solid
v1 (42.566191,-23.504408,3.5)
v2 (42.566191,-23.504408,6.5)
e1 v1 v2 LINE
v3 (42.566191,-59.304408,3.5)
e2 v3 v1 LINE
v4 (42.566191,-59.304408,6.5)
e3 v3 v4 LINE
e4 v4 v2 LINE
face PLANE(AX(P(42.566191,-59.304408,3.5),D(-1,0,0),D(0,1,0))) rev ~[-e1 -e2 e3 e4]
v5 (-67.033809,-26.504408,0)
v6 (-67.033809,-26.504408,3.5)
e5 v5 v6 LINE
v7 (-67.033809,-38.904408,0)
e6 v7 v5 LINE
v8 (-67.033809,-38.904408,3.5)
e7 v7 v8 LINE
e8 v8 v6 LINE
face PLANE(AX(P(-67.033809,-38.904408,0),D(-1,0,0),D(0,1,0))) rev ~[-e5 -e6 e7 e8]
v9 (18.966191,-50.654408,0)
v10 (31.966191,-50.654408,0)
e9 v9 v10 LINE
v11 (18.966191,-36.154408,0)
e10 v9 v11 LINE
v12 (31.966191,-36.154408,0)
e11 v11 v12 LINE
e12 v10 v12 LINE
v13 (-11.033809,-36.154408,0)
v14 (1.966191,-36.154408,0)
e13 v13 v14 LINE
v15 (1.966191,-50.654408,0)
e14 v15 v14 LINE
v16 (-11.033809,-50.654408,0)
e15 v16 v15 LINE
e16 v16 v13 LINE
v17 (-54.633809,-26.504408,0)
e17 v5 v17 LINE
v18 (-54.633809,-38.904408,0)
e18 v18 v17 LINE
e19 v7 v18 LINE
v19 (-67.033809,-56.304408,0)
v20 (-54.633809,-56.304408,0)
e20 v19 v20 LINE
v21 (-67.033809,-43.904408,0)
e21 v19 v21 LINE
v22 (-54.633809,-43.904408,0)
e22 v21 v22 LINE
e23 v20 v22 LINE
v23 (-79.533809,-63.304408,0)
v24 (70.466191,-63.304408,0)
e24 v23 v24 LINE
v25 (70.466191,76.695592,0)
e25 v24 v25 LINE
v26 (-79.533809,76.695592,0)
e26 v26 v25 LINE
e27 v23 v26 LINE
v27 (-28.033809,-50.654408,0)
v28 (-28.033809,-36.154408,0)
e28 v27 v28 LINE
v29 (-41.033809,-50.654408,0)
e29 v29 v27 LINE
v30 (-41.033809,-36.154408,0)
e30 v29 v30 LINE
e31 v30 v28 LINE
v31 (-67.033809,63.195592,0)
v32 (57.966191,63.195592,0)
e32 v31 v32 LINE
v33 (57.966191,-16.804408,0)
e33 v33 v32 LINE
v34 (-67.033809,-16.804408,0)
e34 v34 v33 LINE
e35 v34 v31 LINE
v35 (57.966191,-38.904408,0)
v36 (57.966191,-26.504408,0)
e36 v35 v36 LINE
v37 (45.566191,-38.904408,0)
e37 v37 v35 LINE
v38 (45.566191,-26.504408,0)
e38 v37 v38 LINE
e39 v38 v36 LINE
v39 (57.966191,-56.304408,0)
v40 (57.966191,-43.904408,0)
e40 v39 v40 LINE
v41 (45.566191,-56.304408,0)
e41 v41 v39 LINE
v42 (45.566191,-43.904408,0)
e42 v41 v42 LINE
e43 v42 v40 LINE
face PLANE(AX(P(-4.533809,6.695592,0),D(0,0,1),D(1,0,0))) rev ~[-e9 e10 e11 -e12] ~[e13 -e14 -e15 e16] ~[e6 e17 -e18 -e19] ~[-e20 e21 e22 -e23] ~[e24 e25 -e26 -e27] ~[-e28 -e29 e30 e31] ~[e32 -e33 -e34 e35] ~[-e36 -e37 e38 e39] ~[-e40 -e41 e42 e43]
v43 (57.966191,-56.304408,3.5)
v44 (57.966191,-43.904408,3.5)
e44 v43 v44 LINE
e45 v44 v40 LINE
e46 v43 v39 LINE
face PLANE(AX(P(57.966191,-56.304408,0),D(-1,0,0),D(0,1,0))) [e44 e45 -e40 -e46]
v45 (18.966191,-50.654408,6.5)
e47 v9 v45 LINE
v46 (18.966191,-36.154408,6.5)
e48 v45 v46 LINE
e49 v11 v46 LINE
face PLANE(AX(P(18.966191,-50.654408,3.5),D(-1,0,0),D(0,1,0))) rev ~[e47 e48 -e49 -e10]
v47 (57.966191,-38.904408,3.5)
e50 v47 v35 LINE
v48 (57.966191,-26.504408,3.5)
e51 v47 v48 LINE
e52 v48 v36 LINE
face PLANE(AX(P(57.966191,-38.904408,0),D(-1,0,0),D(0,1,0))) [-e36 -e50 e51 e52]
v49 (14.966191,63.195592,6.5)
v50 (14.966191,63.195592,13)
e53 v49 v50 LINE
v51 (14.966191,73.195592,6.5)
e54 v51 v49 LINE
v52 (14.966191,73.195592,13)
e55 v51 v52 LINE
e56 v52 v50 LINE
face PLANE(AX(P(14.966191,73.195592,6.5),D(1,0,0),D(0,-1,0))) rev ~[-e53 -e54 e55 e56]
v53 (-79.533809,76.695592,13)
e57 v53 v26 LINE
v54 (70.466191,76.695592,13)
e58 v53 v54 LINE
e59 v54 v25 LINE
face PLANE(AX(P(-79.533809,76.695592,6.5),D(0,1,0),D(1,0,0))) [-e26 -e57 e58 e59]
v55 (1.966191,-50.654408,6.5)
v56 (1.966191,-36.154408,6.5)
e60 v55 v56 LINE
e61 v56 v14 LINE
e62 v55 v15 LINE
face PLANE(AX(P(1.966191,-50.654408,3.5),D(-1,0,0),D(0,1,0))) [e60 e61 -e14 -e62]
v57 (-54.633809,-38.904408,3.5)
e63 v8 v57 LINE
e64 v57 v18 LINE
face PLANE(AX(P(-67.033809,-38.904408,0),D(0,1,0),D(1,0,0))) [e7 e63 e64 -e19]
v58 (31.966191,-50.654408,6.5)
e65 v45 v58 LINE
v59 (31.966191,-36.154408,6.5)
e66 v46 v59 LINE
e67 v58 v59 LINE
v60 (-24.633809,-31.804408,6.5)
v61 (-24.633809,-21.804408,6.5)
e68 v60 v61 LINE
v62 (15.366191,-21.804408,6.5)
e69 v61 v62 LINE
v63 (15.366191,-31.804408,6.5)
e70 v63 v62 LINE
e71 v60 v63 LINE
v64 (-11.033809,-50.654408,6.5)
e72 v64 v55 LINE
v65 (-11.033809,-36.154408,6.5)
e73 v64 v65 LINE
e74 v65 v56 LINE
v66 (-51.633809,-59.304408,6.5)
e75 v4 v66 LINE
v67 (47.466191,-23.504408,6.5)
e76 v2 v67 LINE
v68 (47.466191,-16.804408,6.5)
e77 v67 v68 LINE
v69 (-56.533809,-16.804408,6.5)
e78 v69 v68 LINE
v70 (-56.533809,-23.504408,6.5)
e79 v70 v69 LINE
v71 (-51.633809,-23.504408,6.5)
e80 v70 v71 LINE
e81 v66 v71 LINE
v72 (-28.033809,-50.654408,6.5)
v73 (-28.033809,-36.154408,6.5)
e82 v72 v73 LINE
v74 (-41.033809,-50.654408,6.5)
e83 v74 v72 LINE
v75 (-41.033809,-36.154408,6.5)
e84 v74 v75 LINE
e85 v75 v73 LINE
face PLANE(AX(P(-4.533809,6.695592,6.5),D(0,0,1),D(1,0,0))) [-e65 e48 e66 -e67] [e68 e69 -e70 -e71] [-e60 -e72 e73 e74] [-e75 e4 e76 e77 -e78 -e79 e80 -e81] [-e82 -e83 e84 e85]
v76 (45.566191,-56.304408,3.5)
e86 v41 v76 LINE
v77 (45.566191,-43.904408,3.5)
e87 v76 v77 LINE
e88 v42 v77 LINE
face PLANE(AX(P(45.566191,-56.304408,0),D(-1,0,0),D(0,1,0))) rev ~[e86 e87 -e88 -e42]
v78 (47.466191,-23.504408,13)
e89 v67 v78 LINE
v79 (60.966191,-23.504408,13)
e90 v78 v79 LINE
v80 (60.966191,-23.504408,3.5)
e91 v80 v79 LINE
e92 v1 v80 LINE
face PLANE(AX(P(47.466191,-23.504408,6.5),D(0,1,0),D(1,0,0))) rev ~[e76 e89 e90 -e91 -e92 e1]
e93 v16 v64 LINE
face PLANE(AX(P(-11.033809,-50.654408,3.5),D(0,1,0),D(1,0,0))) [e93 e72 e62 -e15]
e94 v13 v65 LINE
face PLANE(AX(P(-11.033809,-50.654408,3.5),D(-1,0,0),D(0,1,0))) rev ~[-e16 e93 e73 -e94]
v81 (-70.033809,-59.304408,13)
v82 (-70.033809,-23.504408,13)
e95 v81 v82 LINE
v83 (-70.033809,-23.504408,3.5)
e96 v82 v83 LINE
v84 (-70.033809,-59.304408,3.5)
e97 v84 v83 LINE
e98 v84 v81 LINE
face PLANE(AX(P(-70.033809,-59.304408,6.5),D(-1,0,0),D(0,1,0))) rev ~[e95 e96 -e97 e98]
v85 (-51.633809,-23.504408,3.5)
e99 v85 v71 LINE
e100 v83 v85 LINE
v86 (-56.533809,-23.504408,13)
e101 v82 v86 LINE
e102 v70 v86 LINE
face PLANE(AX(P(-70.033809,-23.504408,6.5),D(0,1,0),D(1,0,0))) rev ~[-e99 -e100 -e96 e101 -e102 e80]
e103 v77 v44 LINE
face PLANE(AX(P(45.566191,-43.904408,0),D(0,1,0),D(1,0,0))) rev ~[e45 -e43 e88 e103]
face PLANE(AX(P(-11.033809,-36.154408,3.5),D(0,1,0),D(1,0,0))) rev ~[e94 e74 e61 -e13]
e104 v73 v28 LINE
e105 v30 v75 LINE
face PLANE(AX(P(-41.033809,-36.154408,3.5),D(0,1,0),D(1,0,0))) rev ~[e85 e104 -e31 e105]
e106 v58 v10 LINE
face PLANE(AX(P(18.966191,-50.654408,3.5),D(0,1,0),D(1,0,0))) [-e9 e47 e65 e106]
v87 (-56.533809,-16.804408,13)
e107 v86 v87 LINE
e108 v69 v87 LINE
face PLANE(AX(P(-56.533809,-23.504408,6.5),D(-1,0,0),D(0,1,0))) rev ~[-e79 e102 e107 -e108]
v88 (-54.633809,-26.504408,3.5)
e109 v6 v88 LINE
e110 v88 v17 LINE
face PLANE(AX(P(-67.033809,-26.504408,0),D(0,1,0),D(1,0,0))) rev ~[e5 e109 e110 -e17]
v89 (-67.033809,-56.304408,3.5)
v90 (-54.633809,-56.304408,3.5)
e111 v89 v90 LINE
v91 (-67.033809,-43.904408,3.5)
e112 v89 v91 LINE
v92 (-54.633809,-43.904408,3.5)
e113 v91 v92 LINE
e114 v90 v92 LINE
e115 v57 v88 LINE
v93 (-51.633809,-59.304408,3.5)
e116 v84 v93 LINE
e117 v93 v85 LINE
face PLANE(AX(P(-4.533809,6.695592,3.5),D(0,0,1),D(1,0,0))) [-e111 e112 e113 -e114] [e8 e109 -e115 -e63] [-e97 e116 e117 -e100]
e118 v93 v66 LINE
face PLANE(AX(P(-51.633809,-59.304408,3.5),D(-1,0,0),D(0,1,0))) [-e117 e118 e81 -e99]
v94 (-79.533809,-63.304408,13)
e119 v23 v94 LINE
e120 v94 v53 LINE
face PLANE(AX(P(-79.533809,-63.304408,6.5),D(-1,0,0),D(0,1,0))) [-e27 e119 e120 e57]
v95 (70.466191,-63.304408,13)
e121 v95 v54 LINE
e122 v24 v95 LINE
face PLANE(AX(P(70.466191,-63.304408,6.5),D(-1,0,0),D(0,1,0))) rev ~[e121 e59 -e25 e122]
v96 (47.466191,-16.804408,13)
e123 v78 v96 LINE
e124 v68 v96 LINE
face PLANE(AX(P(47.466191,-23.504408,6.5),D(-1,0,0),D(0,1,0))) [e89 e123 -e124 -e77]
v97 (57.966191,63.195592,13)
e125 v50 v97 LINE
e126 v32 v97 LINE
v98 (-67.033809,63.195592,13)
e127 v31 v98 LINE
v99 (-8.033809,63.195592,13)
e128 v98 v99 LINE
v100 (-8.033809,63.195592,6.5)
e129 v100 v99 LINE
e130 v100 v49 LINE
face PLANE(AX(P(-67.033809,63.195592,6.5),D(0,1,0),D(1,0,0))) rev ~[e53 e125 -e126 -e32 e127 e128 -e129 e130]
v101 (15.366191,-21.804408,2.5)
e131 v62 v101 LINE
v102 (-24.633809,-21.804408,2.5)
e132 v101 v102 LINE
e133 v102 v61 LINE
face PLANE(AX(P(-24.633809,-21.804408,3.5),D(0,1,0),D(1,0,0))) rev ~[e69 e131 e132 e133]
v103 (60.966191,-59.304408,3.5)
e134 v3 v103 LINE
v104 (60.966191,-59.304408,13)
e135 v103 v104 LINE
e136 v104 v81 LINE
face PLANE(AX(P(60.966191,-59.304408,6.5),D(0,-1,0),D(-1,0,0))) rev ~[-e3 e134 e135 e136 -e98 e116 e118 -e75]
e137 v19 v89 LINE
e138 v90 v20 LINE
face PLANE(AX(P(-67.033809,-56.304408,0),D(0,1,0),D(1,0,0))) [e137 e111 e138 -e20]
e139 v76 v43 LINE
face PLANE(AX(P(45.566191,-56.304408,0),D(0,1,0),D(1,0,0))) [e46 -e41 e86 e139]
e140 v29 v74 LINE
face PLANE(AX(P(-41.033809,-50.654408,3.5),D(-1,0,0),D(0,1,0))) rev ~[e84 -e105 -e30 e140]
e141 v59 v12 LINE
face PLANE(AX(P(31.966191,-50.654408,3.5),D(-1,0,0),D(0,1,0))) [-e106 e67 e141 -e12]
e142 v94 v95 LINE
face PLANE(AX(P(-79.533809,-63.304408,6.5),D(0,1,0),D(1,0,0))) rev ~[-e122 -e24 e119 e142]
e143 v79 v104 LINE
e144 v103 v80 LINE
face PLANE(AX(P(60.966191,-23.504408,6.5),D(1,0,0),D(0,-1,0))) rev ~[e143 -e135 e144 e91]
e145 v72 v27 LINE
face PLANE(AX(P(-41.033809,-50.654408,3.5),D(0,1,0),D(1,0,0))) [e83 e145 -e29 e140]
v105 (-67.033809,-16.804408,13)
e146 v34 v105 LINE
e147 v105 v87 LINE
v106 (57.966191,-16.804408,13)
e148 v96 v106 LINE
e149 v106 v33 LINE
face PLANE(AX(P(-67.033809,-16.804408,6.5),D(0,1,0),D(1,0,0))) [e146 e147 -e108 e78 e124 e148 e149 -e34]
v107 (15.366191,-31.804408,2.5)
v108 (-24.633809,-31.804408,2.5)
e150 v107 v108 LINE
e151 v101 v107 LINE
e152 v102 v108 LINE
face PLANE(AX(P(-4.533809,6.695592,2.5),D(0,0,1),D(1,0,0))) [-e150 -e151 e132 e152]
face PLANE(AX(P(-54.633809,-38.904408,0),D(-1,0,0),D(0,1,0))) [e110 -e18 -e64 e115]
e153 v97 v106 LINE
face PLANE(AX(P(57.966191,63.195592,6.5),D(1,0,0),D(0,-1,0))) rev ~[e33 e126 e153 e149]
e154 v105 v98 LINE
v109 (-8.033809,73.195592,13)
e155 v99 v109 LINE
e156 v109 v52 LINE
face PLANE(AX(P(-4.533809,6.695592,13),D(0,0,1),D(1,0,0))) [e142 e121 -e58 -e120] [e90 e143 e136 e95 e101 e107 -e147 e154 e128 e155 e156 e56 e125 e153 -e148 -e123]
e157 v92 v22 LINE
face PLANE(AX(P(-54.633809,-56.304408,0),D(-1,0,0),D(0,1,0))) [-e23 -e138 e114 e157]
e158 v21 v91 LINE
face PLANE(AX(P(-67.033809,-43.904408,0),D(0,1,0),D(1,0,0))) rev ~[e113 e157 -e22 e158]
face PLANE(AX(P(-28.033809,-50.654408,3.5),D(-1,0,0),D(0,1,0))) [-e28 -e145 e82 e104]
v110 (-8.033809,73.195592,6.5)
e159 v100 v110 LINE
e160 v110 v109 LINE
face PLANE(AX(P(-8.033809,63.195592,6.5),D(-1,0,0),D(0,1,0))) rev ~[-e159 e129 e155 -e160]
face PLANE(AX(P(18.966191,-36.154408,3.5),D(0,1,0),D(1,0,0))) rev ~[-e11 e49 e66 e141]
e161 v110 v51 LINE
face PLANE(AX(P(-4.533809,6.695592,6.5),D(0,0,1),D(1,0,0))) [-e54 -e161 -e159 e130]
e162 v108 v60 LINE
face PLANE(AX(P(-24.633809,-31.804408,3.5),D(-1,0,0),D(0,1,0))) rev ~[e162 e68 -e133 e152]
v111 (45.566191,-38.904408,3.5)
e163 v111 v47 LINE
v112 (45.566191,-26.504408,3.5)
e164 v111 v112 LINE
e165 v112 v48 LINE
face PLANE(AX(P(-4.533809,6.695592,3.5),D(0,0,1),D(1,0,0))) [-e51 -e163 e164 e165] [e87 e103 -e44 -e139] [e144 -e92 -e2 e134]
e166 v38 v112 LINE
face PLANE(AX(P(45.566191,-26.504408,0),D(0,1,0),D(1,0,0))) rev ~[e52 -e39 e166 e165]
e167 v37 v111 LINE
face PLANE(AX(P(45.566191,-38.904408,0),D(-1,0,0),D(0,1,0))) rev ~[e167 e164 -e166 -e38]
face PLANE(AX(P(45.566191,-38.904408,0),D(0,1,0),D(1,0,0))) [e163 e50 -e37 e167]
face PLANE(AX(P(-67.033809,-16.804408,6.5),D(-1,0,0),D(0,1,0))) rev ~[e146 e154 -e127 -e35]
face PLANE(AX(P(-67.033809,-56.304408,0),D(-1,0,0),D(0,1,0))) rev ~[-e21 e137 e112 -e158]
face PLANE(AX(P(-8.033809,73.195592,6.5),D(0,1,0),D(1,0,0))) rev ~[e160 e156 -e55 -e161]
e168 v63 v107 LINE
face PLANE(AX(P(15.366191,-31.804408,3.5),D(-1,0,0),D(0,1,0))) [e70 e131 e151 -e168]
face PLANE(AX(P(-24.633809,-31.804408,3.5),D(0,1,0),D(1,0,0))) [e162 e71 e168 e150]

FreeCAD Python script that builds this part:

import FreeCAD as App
import Part
import Sketcher
from FreeCAD import Vector
Q = App.Units.Quantity


def add_polygon(sketch, points):
    """Adds a closed chain of lines whose ends are joined by coincident constraints."""
    first, n = sketch.GeometryCount, len(points)
    for a, b in zip(points, points[1:] + points[:1]):
        sketch.addGeometry(Part.LineSegment(App.Vector(*a, 0), App.Vector(*b, 0)), False)
    for i in range(n):
        sketch.addConstraint(Sketcher.Constraint("Coincident", first + i, 2, first + (i + 1) % n, 1))

doc = App.newDocument("Part")
body = doc.addObject("PartDesign::Body", "Body")

sketch1 = doc.addObject("Sketcher::SketchObject", "Sketch")
body.addObject(sketch1)
sketch1.AttachmentSupport = (doc.XY_Plane, [""])
sketch1.MapMode = "FlatFace"
add_polygon(sketch1, [(-80, 77), (-80, -63), (70, -63), (70, 77)])
add_polygon(sketch1, [(-55, -56), (-67, -56), (-67, -44), (-55, -44)])
add_polygon(sketch1, [(-55, -39), (-67, -39), (-67, -27), (-55, -27)])
add_polygon(sketch1, [(-28, -51), (-41, -51), (-41, -36), (-28, -36)])
add_polygon(sketch1, [(2, -51), (-11, -51), (-11, -36), (2, -36)])
add_polygon(sketch1, [(32, -51), (19, -51), (19, -36), (32, -36)])
add_polygon(sketch1, [(58, -56), (46, -56), (46, -44), (58, -44)])
add_polygon(sketch1, [(58, -39), (46, -39), (46, -27), (58, -27)])
add_polygon(sketch1, [(58, -17), (-67, -17), (-67, 63), (58, 63)])
sketch1.addConstraint(Sketcher.Constraint("Vertical", 0))
sketch1.addConstraint(Sketcher.Constraint("Horizontal", 1))
sketch1.addConstraint(Sketcher.Constraint("Vertical", 2))
sketch1.addConstraint(Sketcher.Constraint("Horizontal", 3))
sketch1.addConstraint(Sketcher.Constraint("Horizontal", 4))
sketch1.addConstraint(Sketcher.Constraint("Vertical", 5))
sketch1.addConstraint(Sketcher.Constraint("Horizontal", 6))
sketch1.addConstraint(Sketcher.Constraint("Vertical", 7))
sketch1.addConstraint(Sketcher.Constraint("Horizontal", 8))
sketch1.addConstraint(Sketcher.Constraint("Vertical", 9))
sketch1.addConstraint(Sketcher.Constraint("Horizontal", 10))
sketch1.addConstraint(Sketcher.Constraint("Vertical", 11))
sketch1.addConstraint(Sketcher.Constraint("Horizontal", 12))
sketch1.addConstraint(Sketcher.Constraint("Vertical", 13))
sketch1.addConstraint(Sketcher.Constraint("Horizontal", 14))
sketch1.addConstraint(Sketcher.Constraint("Vertical", 15))
sketch1.addConstraint(Sketcher.Constraint("Horizontal", 16))
sketch1.addConstraint(Sketcher.Constraint("Vertical", 17))
sketch1.addConstraint(Sketcher.Constraint("Horizontal", 18))
sketch1.addConstraint(Sketcher.Constraint("Vertical", 19))
sketch1.addConstraint(Sketcher.Constraint("Horizontal", 20))
sketch1.addConstraint(Sketcher.Constraint("Vertical", 21))
sketch1.addConstraint(Sketcher.Constraint("Horizontal", 22))
sketch1.addConstraint(Sketcher.Constraint("Vertical", 23))
sketch1.addConstraint(Sketcher.Constraint("Horizontal", 24))
sketch1.addConstraint(Sketcher.Constraint("Vertical", 25))
sketch1.addConstraint(Sketcher.Constraint("Horizontal", 26))
sketch1.addConstraint(Sketcher.Constraint("Vertical", 27))
sketch1.addConstraint(Sketcher.Constraint("Horizontal", 28))
sketch1.addConstraint(Sketcher.Constraint("Vertical", 29))
sketch1.addConstraint(Sketcher.Constraint("Horizontal", 30))
sketch1.addConstraint(Sketcher.Constraint("Vertical", 31))
sketch1.addConstraint(Sketcher.Constraint("Horizontal", 32))
sketch1.addConstraint(Sketcher.Constraint("Vertical", 33))
sketch1.addConstraint(Sketcher.Constraint("Horizontal", 34))
sketch1.addConstraint(Sketcher.Constraint("Vertical", 35))
sketch1.addConstraint(Sketcher.Constraint("Horizontal", 15, 2, 16, 2))
sketch1.addConstraint(Sketcher.Constraint("Horizontal", 14, 2, 17, 2))
sketch1.addConstraint(Sketcher.Constraint("Horizontal", 19, 2, 20, 2))
sketch1.addConstraint(Sketcher.Constraint("Horizontal", 18, 2, 21, 2))
sketch1.addConstraint(Sketcher.Constraint("Horizontal", 7, 2, 24, 2))
sketch1.addConstraint(Sketcher.Constraint("Horizontal", 6, 2, 25, 2))
sketch1.addConstraint(Sketcher.Constraint("Horizontal", 11, 2, 28, 2))
sketch1.addConstraint(Sketcher.Constraint("Horizontal", 10, 2, 29, 2))
sketch1.addConstraint(Sketcher.Constraint("Vertical", 5, 2, 8, 2))
sketch1.addConstraint(Sketcher.Constraint("Vertical", 7, 2, 10, 2))
sketch1.addConstraint(Sketcher.Constraint("Vertical", 25, 2, 28, 2))
sketch1.addConstraint(Sketcher.Constraint("Vertical", 27, 2, 30, 2))
sketch1.addConstraint(Sketcher.Constraint("Vertical", 9, 2, 32, 2))
sketch1.addConstraint(Sketcher.Constraint("Vertical", 31, 2, 34, 2))
sketch1.addConstraint(Sketcher.Constraint("Equal", 14, 16))
sketch1.addConstraint(Sketcher.Constraint("Equal", 18, 20))
sketch1.addConstraint(Sketcher.Constraint("Equal", 10, 24))
sketch1.addConstraint(Sketcher.Constraint("Equal", 30, 5))
sketch1.addConstraint(Sketcher.Constraint("Equal", 7, 9))
sketch1.addConstraint(Sketcher.Constraint("DistanceX", 1, 1, 1, 2, Q("150 mm")))
sketch1.addConstraint(Sketcher.Constraint("DistanceX", 12, 2, 12, 1, Q("13 mm")))
sketch1.addConstraint(Sketcher.Constraint("DistanceX", 32, 2, 32, 1, Q("125 mm")))
sketch1.addConstraint(Sketcher.Constraint("DistanceY", 0, 2, 0, 1, Q("140 mm")))
sketch1.addConstraint(Sketcher.Constraint("DistanceY", 33, 1, 33, 2, Q("80 mm")))
sketch1.addConstraint(Sketcher.Constraint("DistanceX", 4, 2, 4, 1, Q("12.4 mm")))
sketch1.addConstraint(Sketcher.Constraint("DistanceY", 13, 1, 13, 2, Q("14.5 mm")))
sketch1.addConstraint(Sketcher.Constraint("DistanceY", 0, 2, 4, 2, Q("7 mm")))
sketch1.addConstraint(Sketcher.Constraint("DistanceY", 5, 2, 8, 2, Q("5 mm")))
sketch1.addConstraint(Sketcher.Constraint("DistanceX", 4, 2, 12, 2, Q("26 mm")))
sketch1.addConstraint(Sketcher.Constraint("DistanceX", 15, 2, 16, 2, Q("17 mm")))
sketch1.addConstraint(Sketcher.Constraint("DistanceX", 19, 2, 20, 2, Q("17 mm")))
sketch1.addConstraint(Sketcher.Constraint("DistanceX", 0, 2, 4, 2, Q("12.5 mm")))
sketch1.addConstraint(Sketcher.Constraint("DistanceY", 9, 2, 32, 2, Q("9.7 mm")))
sketch1.addConstraint(Sketcher.Constraint("DistanceY", 7, 2, 12, 2, Q("5.65 mm")))
sketch1.addConstraint(Sketcher.Constraint("DistanceX", 0, 2, -1, 1, Q("79.533809 mm")))
sketch1.addConstraint(Sketcher.Constraint("DistanceY", 0, 2, -1, 1, Q("63.304408 mm")))
pad1 = doc.addObject("PartDesign::Pad", "Pad")
body.addObject(pad1)
pad1.Profile = sketch1
pad1.Length = 2.5

sketch2 = doc.addObject("Sketcher::SketchObject", "Sketch001")
body.addObject(sketch2)
sketch2.AttachmentSupport = (doc.XY_Plane, [""])
sketch2.MapMode = "FlatFace"
add_polygon(sketch2, [(-80, 77), (-80, -63), (70, -63), (70, 77)])
add_polygon(sketch2, [(-55, -56), (-67, -56), (-67, -44), (-55, -44)])
add_polygon(sketch2, [(-55, -39), (-67, -39), (-67, -27), (-55, -27)])
add_polygon(sketch2, [(-28, -51), (-41, -51), (-41, -36), (-28, -36)])
add_polygon(sketch2, [(15, -32), (-25, -32), (-25, -22), (15, -22)])
add_polygon(sketch2, [(2, -51), (-11, -51), (-11, -36), (2, -36)])
add_polygon(sketch2, [(32, -51), (19, -51), (19, -36), (32, -36)])
add_polygon(sketch2, [(58, -56), (46, -56), (46, -44), (58, -44)])
add_polygon(sketch2, [(58, -39), (46, -39), (46, -27), (58, -27)])
add_polygon(sketch2, [(58, -17), (-67, -17), (-67, 63), (58, 63)])
sketch2.addConstraint(Sketcher.Constraint("Vertical", 0))
sketch2.addConstraint(Sketcher.Constraint("Horizontal", 1))
sketch2.addConstraint(Sketcher.Constraint("Vertical", 2))
sketch2.addConstraint(Sketcher.Constraint("Horizontal", 3))
sketch2.addConstraint(Sketcher.Constraint("Horizontal", 4))
sketch2.addConstraint(Sketcher.Constraint("Vertical", 5))
sketch2.addConstraint(Sketcher.Constraint("Horizontal", 6))
sketch2.addConstraint(Sketcher.Constraint("Vertical", 7))
sketch2.addConstraint(Sketcher.Constraint("Horizontal", 8))
sketch2.addConstraint(Sketcher.Constraint("Vertical", 9))
sketch2.addConstraint(Sketcher.Constraint("Horizontal", 10))
sketch2.addConstraint(Sketcher.Constraint("Vertical", 11))
sketch2.addConstraint(Sketcher.Constraint("Horizontal", 12))
sketch2.addConstraint(Sketcher.Constraint("Vertical", 13))
sketch2.addConstraint(Sketcher.Constraint("Horizontal", 14))
sketch2.addConstraint(Sketcher.Constraint("Vertical", 15))
sketch2.addConstraint(Sketcher.Constraint("Horizontal", 16))
sketch2.addConstraint(Sketcher.Constraint("Vertical", 17))
sketch2.addConstraint(Sketcher.Constraint("Horizontal", 18))
sketch2.addConstraint(Sketcher.Constraint("Vertical", 19))
sketch2.addConstraint(Sketcher.Constraint("Horizontal", 20))
sketch2.addConstraint(Sketcher.Constraint("Vertical", 21))
sketch2.addConstraint(Sketcher.Constraint("Horizontal", 22))
sketch2.addConstraint(Sketcher.Constraint("Vertical", 23))
sketch2.addConstraint(Sketcher.Constraint("Horizontal", 24))
sketch2.addConstraint(Sketcher.Constraint("Vertical", 25))
sketch2.addConstraint(Sketcher.Constraint("Horizontal", 26))
sketch2.addConstraint(Sketcher.Constraint("Vertical", 27))
sketch2.addConstraint(Sketcher.Constraint("Horizontal", 28))
sketch2.addConstraint(Sketcher.Constraint("Vertical", 29))
sketch2.addConstraint(Sketcher.Constraint("Horizontal", 30))
sketch2.addConstraint(Sketcher.Constraint("Vertical", 31))
sketch2.addConstraint(Sketcher.Constraint("Horizontal", 32))
sketch2.addConstraint(Sketcher.Constraint("Vertical", 33))
sketch2.addConstraint(Sketcher.Constraint("Horizontal", 34))
sketch2.addConstraint(Sketcher.Constraint("Vertical", 35))
sketch2.addConstraint(Sketcher.Constraint("Horizontal", 36))
sketch2.addConstraint(Sketcher.Constraint("Vertical", 37))
sketch2.addConstraint(Sketcher.Constraint("Horizontal", 38))
sketch2.addConstraint(Sketcher.Constraint("Vertical", 39))
sketch2.addConstraint(Sketcher.Constraint("Horizontal", 15, 2, 20, 2))
sketch2.addConstraint(Sketcher.Constraint("Horizontal", 14, 2, 21, 2))
sketch2.addConstraint(Sketcher.Constraint("Horizontal", 23, 2, 24, 2))
sketch2.addConstraint(Sketcher.Constraint("Horizontal", 22, 2, 25, 2))
sketch2.addConstraint(Sketcher.Constraint("Horizontal", 7, 2, 28, 2))
sketch2.addConstraint(Sketcher.Constraint("Horizontal", 6, 2, 29, 2))
sketch2.addConstraint(Sketcher.Constraint("Horizontal", 11, 2, 32, 2))
sketch2.addConstraint(Sketcher.Constraint("Horizontal", 10, 2, 33, 2))
sketch2.addConstraint(Sketcher.Constraint("Vertical", 5, 2, 8, 2))
sketch2.addConstraint(Sketcher.Constraint("Vertical", 7, 2, 10, 2))
sketch2.addConstraint(Sketcher.Constraint("Vertical", 29, 2, 32, 2))
sketch2.addConstraint(Sketcher.Constraint("Vertical", 31, 2, 34, 2))
sketch2.addConstraint(Sketcher.Constraint("Vertical", 9, 2, 36, 2))
sketch2.addConstraint(Sketcher.Constraint("Vertical", 35, 2, 38, 2))
sketch2.addConstraint(Sketcher.Constraint("Equal", 14, 20))
sketch2.addConstraint(Sketcher.Constraint("Equal", 22, 24))
sketch2.addConstraint(Sketcher.Constraint("Equal", 10, 28))
sketch2.addConstraint(Sketcher.Constraint("Equal", 34, 5))
sketch2.addConstraint(Sketcher.Constraint("Equal", 7, 9))
sketch2.addConstraint(Sketcher.Constraint("DistanceX", 1, 1, 1, 2, Q("150 mm")))
sketch2.addConstraint(Sketcher.Constraint("DistanceX", 12, 2, 12, 1, Q("13 mm")))
sketch2.addConstraint(Sketcher.Constraint("DistanceX", 16, 2, 16, 1, Q("40 mm")))
sketch2.addConstraint(Sketcher.Constraint("DistanceX", 36, 2, 36, 1, Q("125 mm")))
sketch2.addConstraint(Sketcher.Constraint("DistanceY", 0, 2, 0, 1, Q("140 mm")))
sketch2.addConstraint(Sketcher.Constraint("DistanceY", 17, 1, 17, 2, Q("10 mm")))
sketch2.addConstraint(Sketcher.Constraint("DistanceY", 37, 1, 37, 2, Q("80 mm")))
sketch2.addConstraint(Sketcher.Constraint("DistanceX", 4, 2, 4, 1, Q("12.4 mm")))
sketch2.addConstraint(Sketcher.Constraint("DistanceY", 13, 1, 13, 2, Q("14.5 mm")))
sketch2.addConstraint(Sketcher.Constraint("DistanceY", 0, 2, 4, 2, Q("7 mm")))
sketch2.addConstraint(Sketcher.Constraint("DistanceY", 5, 2, 8, 2, Q("5 mm")))
sketch2.addConstraint(Sketcher.Constraint("DistanceX", 4, 2, 12, 2, Q("26 mm")))
sketch2.addConstraint(Sketcher.Constraint("DistanceX", 10, 2, 16, 2, Q("30 mm")))
sketch2.addConstraint(Sketcher.Constraint("DistanceX", 15, 2, 20, 2, Q("17 mm")))
sketch2.addConstraint(Sketcher.Constraint("DistanceX", 23, 2, 24, 2, Q("17 mm")))
sketch2.addConstraint(Sketcher.Constraint("DistanceY", 17, 2, 37, 2, Q("85 mm")))
sketch2.addConstraint(Sketcher.Constraint("DistanceX", 0, 2, 4, 2, Q("12.5 mm")))
sketch2.addConstraint(Sketcher.Constraint("DistanceY", 16, 2, 10, 2, Q("5.3 mm")))
sketch2.addConstraint(Sketcher.Constraint("DistanceY", 7, 2, 12, 2, Q("5.65 mm")))
sketch2.addConstraint(Sketcher.Constraint("DistanceX", 0, 2, -1, 1, Q("79.533809 mm")))
sketch2.addConstraint(Sketcher.Constraint("DistanceY", 0, 2, -1, 1, Q("63.304408 mm")))
pad2 = doc.addObject("PartDesign::Pad", "Pad001")
body.addObject(pad2)
pad2.Profile = sketch2
pad2.Length = 3.5

sketch3 = doc.addObject("Sketcher::SketchObject", "Sketch002")
body.addObject(sketch3)
sketch3.AttachmentSupport = (doc.XY_Plane, [""])
sketch3.MapMode = "FlatFace"
sketch3.AttachmentOffset = App.Placement(Vector(0, 0, 3.5), App.Rotation())
add_polygon(sketch3, [(-80, 77), (-80, -63), (70, -63), (70, 77)])
add_polygon(sketch3, [(-52, -59), (-70, -59), (-70, -24), (-52, -24)])
add_polygon(sketch3, [(-28, -51), (-41, -51), (-41, -36), (-28, -36)])
add_polygon(sketch3, [(15, -32), (-25, -32), (-25, -22), (15, -22)])
add_polygon(sketch3, [(2, -51), (-11, -51), (-11, -36), (2, -36)])
add_polygon(sketch3, [(32, -51), (19, -51), (19, -36), (32, -36)])
add_polygon(sketch3, [(61, -59), (43, -59), (43, -24), (61, -24)])
add_polygon(sketch3, [(58, -17), (-67, -17), (-67, 63), (58, 63)])
sketch3.addConstraint(Sketcher.Constraint("Vertical", 0))
sketch3.addConstraint(Sketcher.Constraint("Horizontal", 1))
sketch3.addConstraint(Sketcher.Constraint("Vertical", 2))
sketch3.addConstraint(Sketcher.Constraint("Horizontal", 3))
sketch3.addConstraint(Sketcher.Constraint("Horizontal", 4))
sketch3.addConstraint(Sketcher.Constraint("Vertical", 5))
sketch3.addConstraint(Sketcher.Constraint("Horizontal", 6))
sketch3.addConstraint(Sketcher.Constraint("Vertical", 7))
sketch3.addConstraint(Sketcher.Constraint("Horizontal", 8))
sketch3.addConstraint(Sketcher.Constraint("Vertical", 9))
sketch3.addConstraint(Sketcher.Constraint("Horizontal", 10))
sketch3.addConstraint(Sketcher.Constraint("Vertical", 11))
sketch3.addConstraint(Sketcher.Constraint("Horizontal", 12))
sketch3.addConstraint(Sketcher.Constraint("Vertical", 13))
sketch3.addConstraint(Sketcher.Constraint("Horizontal", 14))
sketch3.addConstraint(Sketcher.Constraint("Vertical", 15))
sketch3.addConstraint(Sketcher.Constraint("Horizontal", 16))
sketch3.addConstraint(Sketcher.Constraint("Vertical", 17))
sketch3.addConstraint(Sketcher.Constraint("Horizontal", 18))
sketch3.addConstraint(Sketcher.Constraint("Vertical", 19))
sketch3.addConstraint(Sketcher.Constraint("Horizontal", 20))
sketch3.addConstraint(Sketcher.Constraint("Vertical", 21))
sketch3.addConstraint(Sketcher.Constraint("Horizontal", 22))
sketch3.addConstraint(Sketcher.Constraint("Vertical", 23))
sketch3.addConstraint(Sketcher.Constraint("Horizontal", 24))
sketch3.addConstraint(Sketcher.Constraint("Vertical", 25))
sketch3.addConstraint(Sketcher.Constraint("Horizontal", 26))
sketch3.addConstraint(Sketcher.Constraint("Vertical", 27))
sketch3.addConstraint(Sketcher.Constraint("Horizontal", 28))
sketch3.addConstraint(Sketcher.Constraint("Vertical", 29))
sketch3.addConstraint(Sketcher.Constraint("Horizontal", 30))
sketch3.addConstraint(Sketcher.Constraint("Vertical", 31))
sketch3.addConstraint(Sketcher.Constraint("Horizontal", 11, 2, 16, 2))
sketch3.addConstraint(Sketcher.Constraint("Horizontal", 10, 2, 17, 2))
sketch3.addConstraint(Sketcher.Constraint("Horizontal", 19, 2, 20, 2))
sketch3.addConstraint(Sketcher.Constraint("Horizontal", 18, 2, 21, 2))
sketch3.addConstraint(Sketcher.Constraint("Horizontal", 7, 2, 24, 2))
sketch3.addConstraint(Sketcher.Constraint("Horizontal", 6, 2, 25, 2))
sketch3.addConstraint(Sketcher.Constraint("Equal", 10, 16))
sketch3.addConstraint(Sketcher.Constraint("Equal", 18, 20))
sketch3.addConstraint(Sketcher.Constraint("Equal", 6, 24))
sketch3.addConstraint(Sketcher.Constraint("DistanceX", 1, 1, 1, 2, Q("150 mm")))
sketch3.addConstraint(Sketcher.Constraint("DistanceX", 8, 2, 8, 1, Q("13 mm")))
sketch3.addConstraint(Sketcher.Constraint("DistanceX", 12, 2, 12, 1, Q("40 mm")))
sketch3.addConstraint(Sketcher.Constraint("DistanceX", 28, 2, 28, 1, Q("125 mm")))
sketch3.addConstraint(Sketcher.Constraint("DistanceY", 0, 2, 0, 1, Q("140 mm")))
sketch3.addConstraint(Sketcher.Constraint("DistanceY", 13, 1, 13, 2, Q("10 mm")))
sketch3.addConstraint(Sketcher.Constraint("DistanceY", 29, 1, 29, 2, Q("80 mm")))
sketch3.addConstraint(Sketcher.Constraint("DistanceX", 4, 2, 4, 1, Q("18.4 mm")))
sketch3.addConstraint(Sketcher.Constraint("DistanceY", 5, 1, 5, 2, Q("35.8 mm")))
sketch3.addConstraint(Sketcher.Constraint("DistanceY", 9, 1, 9, 2, Q("14.5 mm")))
sketch3.addConstraint(Sketcher.Constraint("DistanceY", 0, 2, 4, 2, Q("4 mm")))
sketch3.addConstraint(Sketcher.Constraint("DistanceX", 4, 2, 8, 2, Q("29 mm")))
sketch3.addConstraint(Sketcher.Constraint("DistanceX", 6, 2, 12, 2, Q("27 mm")))
sketch3.addConstraint(Sketcher.Constraint("DistanceX", 11, 2, 16, 2, Q("17 mm")))
sketch3.addConstraint(Sketcher.Constraint("DistanceX", 19, 2, 20, 2, Q("17 mm")))
sketch3.addConstraint(Sketcher.Constraint("DistanceX", 22, 2, 26, 2, Q("29 mm")))
sketch3.addConstraint(Sketcher.Constraint("DistanceX", 5, 2, 28, 2, Q("3 mm")))
sketch3.addConstraint(Sketcher.Constraint("DistanceY", 13, 2, 29, 2, Q("85 mm")))
sketch3.addConstraint(Sketcher.Constraint("DistanceX", 0, 2, 4, 2, Q("9.5 mm")))
sketch3.addConstraint(Sketcher.Constraint("DistanceY", 12, 2, 6, 2, Q("8.3 mm")))
sketch3.addConstraint(Sketcher.Constraint("DistanceY", 7, 2, 8, 2, Q("8.65 mm")))
sketch3.addConstraint(Sketcher.Constraint("DistanceX", 0, 2, -1, 1, Q("79.533809 mm")))
sketch3.addConstraint(Sketcher.Constraint("DistanceY", 0, 2, -1, 1, Q("63.304408 mm")))
pad3 = doc.addObject("PartDesign::Pad", "Pad002")
body.addObject(pad3)
pad3.Profile = sketch3
pad3.Length = 3

sketch4 = doc.addObject("Sketcher::SketchObject", "Sketch003")
body.addObject(sketch4)
sketch4.AttachmentSupport = (doc.XY_Plane, [""])
sketch4.MapMode = "FlatFace"
sketch4.AttachmentOffset = App.Placement(Vector(0, 0, 6.5), App.Rotation())
add_polygon(sketch4, [(-80, 77), (-80, -63), (70, -63), (70, 77)])
add_polygon(sketch4, [(-70, -24), (-57, -24), (-57, -17), (-67, -17), (-67, 63), (-8, 63), (-8, 73), (15, 73), (15, 63), (58, 63), (58, -17), (47, -17), (47, -24), (61, -24), (61, -59), (-70, -59)])
sketch4.addConstraint(Sketcher.Constraint("Vertical", 0))
sketch4.addConstraint(Sketcher.Constraint("Horizontal", 1))
sketch4.addConstraint(Sketcher.Constraint("Vertical", 2))
sketch4.addConstraint(Sketcher.Constraint("Horizontal", 3))
sketch4.addConstraint(Sketcher.Constraint("Horizontal", 4))
sketch4.addConstraint(Sketcher.Constraint("Vertical", 5))
sketch4.addConstraint(Sketcher.Constraint("Horizontal", 6))
sketch4.addConstraint(Sketcher.Constraint("Vertical", 7))
sketch4.addConstraint(Sketcher.Constraint("Horizontal", 8))
sketch4.addConstraint(Sketcher.Constraint("Vertical", 9))
sketch4.addConstraint(Sketcher.Constraint("Horizontal", 10))
sketch4.addConstraint(Sketcher.Constraint("Vertical", 11))
sketch4.addConstraint(Sketcher.Constraint("Horizontal", 12))
sketch4.addConstraint(Sketcher.Constraint("Vertical", 13))
sketch4.addConstraint(Sketcher.Constraint("Horizontal", 14))
sketch4.addConstraint(Sketcher.Constraint("Vertical", 15))
sketch4.addConstraint(Sketcher.Constraint("Horizontal", 16))
sketch4.addConstraint(Sketcher.Constraint("Vertical", 17))
sketch4.addConstraint(Sketcher.Constraint("Horizontal", 18))
sketch4.addConstraint(Sketcher.Constraint("Vertical", 19))
sketch4.addConstraint(Sketcher.Constraint("Horizontal", 8, 2, 11, 2))
sketch4.addConstraint(Sketcher.Constraint("Horizontal", 6, 2, 13, 2))
sketch4.addConstraint(Sketcher.Constraint("Horizontal", 4, 2, 15, 2))
sketch4.addConstraint(Sketcher.Constraint("Equal", 6, 14))
sketch4.addConstraint(Sketcher.Constraint("Equal", 4, 16))
sketch4.addConstraint(Sketcher.Constraint("DistanceX", 1, 1, 1, 2, Q("150 mm")))
sketch4.addConstraint(Sketcher.Constraint("DistanceX", 8, 1, 8, 2, Q("59 mm")))
sketch4.addConstraint(Sketcher.Constraint("DistanceX", 10, 1, 10, 2, Q("23 mm")))
sketch4.addConstraint(Sketcher.Constraint("DistanceX", 12, 1, 12, 2, Q("43 mm")))
sketch4.addConstraint(Sketcher.Constraint("DistanceX", 18, 2, 18, 1, Q("131 mm")))
sketch4.addConstraint(Sketcher.Constraint("DistanceY", 0, 2, 0, 1, Q("140 mm")))
sketch4.addConstraint(Sketcher.Constraint("DistanceY", 7, 1, 7, 2, Q("80 mm")))
sketch4.addConstraint(Sketcher.Constraint("DistanceY", 9, 1, 9, 2, Q("10 mm")))
sketch4.addConstraint(Sketcher.Constraint("DistanceX", 4, 1, 4, 2, Q("13.5 mm")))
sketch4.addConstraint(Sketcher.Constraint("DistanceY", 5, 1, 5, 2, Q("6.7 mm")))
sketch4.addConstraint(Sketcher.Constraint("DistanceY", 17, 2, 17, 1, Q("35.8 mm")))
sketch4.addConstraint(Sketcher.Constraint("DistanceX", 0, 2, 4, 2, Q("23 mm")))
sketch4.addConstraint(Sketcher.Constraint("DistanceY", 1, 2, 17, 2, Q("4 mm")))
sketch4.addConstraint(Sketcher.Constraint("DistanceX", 0, 2, -1, 1, Q("79.533809 mm")))
sketch4.addConstraint(Sketcher.Constraint("DistanceY", 0, 2, -1, 1, Q("63.304408 mm")))
pad4 = doc.addObject("PartDesign::Pad", "Pad003")
body.addObject(pad4)
pad4.Profile = sketch4
pad4.Length = 6.5

doc.recompute()
